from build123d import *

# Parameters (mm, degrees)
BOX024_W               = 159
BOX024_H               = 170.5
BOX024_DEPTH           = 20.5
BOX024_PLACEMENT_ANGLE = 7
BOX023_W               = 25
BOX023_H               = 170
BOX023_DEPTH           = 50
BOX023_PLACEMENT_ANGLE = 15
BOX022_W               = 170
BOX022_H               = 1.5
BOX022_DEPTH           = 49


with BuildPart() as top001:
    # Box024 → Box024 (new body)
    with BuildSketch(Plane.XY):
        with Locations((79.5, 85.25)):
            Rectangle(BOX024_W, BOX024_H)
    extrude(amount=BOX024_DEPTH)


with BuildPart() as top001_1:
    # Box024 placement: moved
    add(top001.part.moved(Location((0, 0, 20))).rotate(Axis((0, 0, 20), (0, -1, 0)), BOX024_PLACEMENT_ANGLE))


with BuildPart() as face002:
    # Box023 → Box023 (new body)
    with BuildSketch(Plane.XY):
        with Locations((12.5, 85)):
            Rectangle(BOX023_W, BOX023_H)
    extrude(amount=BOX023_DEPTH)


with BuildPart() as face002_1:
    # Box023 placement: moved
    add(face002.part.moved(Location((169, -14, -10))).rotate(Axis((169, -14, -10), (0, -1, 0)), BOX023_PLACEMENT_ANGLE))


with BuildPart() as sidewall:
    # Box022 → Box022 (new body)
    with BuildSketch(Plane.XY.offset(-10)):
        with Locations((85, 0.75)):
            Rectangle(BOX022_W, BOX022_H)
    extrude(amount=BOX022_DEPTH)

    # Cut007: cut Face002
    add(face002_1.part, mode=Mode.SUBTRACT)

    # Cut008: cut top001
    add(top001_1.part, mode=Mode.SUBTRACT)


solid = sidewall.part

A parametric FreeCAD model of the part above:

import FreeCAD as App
import Part
import Sketcher
Q = App.Units.Quantity

doc = App.newDocument("Part")
body = doc.addObject("PartDesign::Body", "Body")

# Sketch on XY plane
sketch1 = doc.addObject("Sketcher::SketchObject", "Sketch")
body.addObject(sketch1)
sketch1.AttachmentSupport = (doc.XY_Plane, [""])
sketch1.MapMode = "FlatFace"
sketch1.addGeometry([
    Part.LineSegment(App.Vector(0, 170, 0), App.Vector(0, 0, 0)),
    Part.LineSegment(App.Vector(0, 0, 0), App.Vector(159, 0, 0)),
    Part.LineSegment(App.Vector(159, 0, 0), App.Vector(159, 170, 0)),
    Part.LineSegment(App.Vector(159, 170, 0), App.Vector(0, 170, 0)),
], False)
sketch1.addConstraint([
    Sketcher.Constraint("Coincident", 0, 2, 1, 1),
    Sketcher.Constraint("Coincident", 1, 2, 2, 1),
    Sketcher.Constraint("Coincident", 2, 2, 3, 1),
    Sketcher.Constraint("Coincident", 3, 2, 0, 1),
    Sketcher.Constraint("Vertical", 0),
    Sketcher.Constraint("Horizontal", 1),
    Sketcher.Constraint("Vertical", 2),
    Sketcher.Constraint("Horizontal", 3),
    Sketcher.Constraint("Coincident", 0, 2, -1, 1),
    Sketcher.Constraint("DistanceX", 1, 1, 1, 2, Q("159 mm")),
    Sketcher.Constraint("DistanceY", 0, 2, 0, 1, Q("170.5 mm")),
])
pad1 = doc.addObject("PartDesign::Pad", "Pad")
body.addObject(pad1)
pad1.Profile = sketch1
pad1.Length = 20.5
body2 = doc.addObject("PartDesign::Body", "Body001")
doc.recompute()

body.Placement = App.Placement(App.Vector(0, 0, 20), App.Rotation(App.Vector(0, -1, 0), 7))
boolean = doc.addObject("PartDesign::Boolean", "Boolean")
body2.addObject(boolean)
boolean.Type = "Fuse"
boolean.addObjects([body])
body3 = doc.addObject("PartDesign::Body", "Body002")

# Sketch on XY plane
sketch2 = doc.addObject("Sketcher::SketchObject", "Sketch001")
body3.addObject(sketch2)
sketch2.AttachmentSupport = (doc.getObject("XY_Plane002"), [""])
sketch2.MapMode = "FlatFace"
sketch2.addGeometry([
    Part.LineSegment(App.Vector(0, 170, 0), App.Vector(0, 0, 0)),
    Part.LineSegment(App.Vector(0, 0, 0), App.Vector(25, 0, 0)),
    Part.LineSegment(App.Vector(25, 0, 0), App.Vector(25, 170, 0)),
    Part.LineSegment(App.Vector(25, 170, 0), App.Vector(0, 170, 0)),
], False)
sketch2.addConstraint([
    Sketcher.Constraint("Coincident", 0, 2, 1, 1),
    Sketcher.Constraint("Coincident", 1, 2, 2, 1),
    Sketcher.Constraint("Coincident", 2, 2, 3, 1),
    Sketcher.Constraint("Coincident", 3, 2, 0, 1),
    Sketcher.Constraint("Vertical", 0),
    Sketcher.Constraint("Horizontal", 1),
    Sketcher.Constraint("Vertical", 2),
    Sketcher.Constraint("Horizontal", 3),
    Sketcher.Constraint("Coincident", 0, 2, -1, 1),
    Sketcher.Constraint("DistanceX", 1, 1, 1, 2, Q("25 mm")),
    Sketcher.Constraint("DistanceY", 0, 2, 0, 1, Q("170 mm")),
])
pad2 = doc.addObject("PartDesign::Pad", "Pad001")
body3.addObject(pad2)
pad2.Profile = sketch2
pad2.Length = 50
body4 = doc.addObject("PartDesign::Body", "Body003")
doc.recompute()

body3.Placement = App.Placement(App.Vector(169, -14, -10), App.Rotation(App.Vector(0, -1, 0), 15))
boolean2 = doc.addObject("PartDesign::Boolean", "Boolean001")
body4.addObject(boolean2)
boolean2.Type = "Fuse"
boolean2.addObjects([body3])
body5 = doc.addObject("PartDesign::Body", "Body004")
body5.AllowCompound = True

# Sketch on XY plane
sketch3 = doc.addObject("Sketcher::SketchObject", "Sketch002")
body5.addObject(sketch3)
sketch3.AttachmentSupport = (doc.getObject("XY_Plane004"), [""])
sketch3.MapMode = "FlatFace"
sketch3.AttachmentOffset = App.Placement(App.Vector(0, 0, -10), App.Rotation())
sketch3.addGeometry([
    Part.LineSegment(App.Vector(0, 1.5, 0), App.Vector(0, 0, 0)),
    Part.LineSegment(App.Vector(0, 0, 0), App.Vector(170, 0, 0)),
    Part.LineSegment(App.Vector(170, 0, 0), App.Vector(170, 1.5, 0)),
    Part.LineSegment(App.Vector(170, 1.5, 0), App.Vector(0, 1.5, 0)),
], False)
sketch3.addConstraint([
    Sketcher.Constraint("Coincident", 0, 2, 1, 1),
    Sketcher.Constraint("Coincident", 1, 2, 2, 1),
    Sketcher.Constraint("Coincident", 2, 2, 3, 1),
    Sketcher.Constraint("Coincident", 3, 2, 0, 1),
    Sketcher.Constraint("Vertical", 0),
    Sketcher.Constraint("Horizontal", 1),
    Sketcher.Constraint("Vertical", 2),
    Sketcher.Constraint("Horizontal", 3),
    Sketcher.Constraint("Coincident", 0, 2, -1, 1),
    Sketcher.Constraint("DistanceX", 1, 1, 1, 2, Q("170 mm")),
    Sketcher.Constraint("DistanceY", 0, 2, 0, 1, Q("1.5 mm")),
])
pad3 = doc.addObject("PartDesign::Pad", "Pad002")
body5.addObject(pad3)
pad3.Profile = sketch3
pad3.Length = 49
doc.recompute()

boolean3 = doc.addObject("PartDesign::Boolean", "Boolean002")
body5.addObject(boolean3)
boolean3.Type = "Cut"
boolean3.addObjects([body4])
doc.recompute()

boolean4 = doc.addObject("PartDesign::Boolean", "Boolean003")
body5.addObject(boolean4)
boolean4.Type = "Cut"
boolean4.addObjects([body2])

doc.recompute()
